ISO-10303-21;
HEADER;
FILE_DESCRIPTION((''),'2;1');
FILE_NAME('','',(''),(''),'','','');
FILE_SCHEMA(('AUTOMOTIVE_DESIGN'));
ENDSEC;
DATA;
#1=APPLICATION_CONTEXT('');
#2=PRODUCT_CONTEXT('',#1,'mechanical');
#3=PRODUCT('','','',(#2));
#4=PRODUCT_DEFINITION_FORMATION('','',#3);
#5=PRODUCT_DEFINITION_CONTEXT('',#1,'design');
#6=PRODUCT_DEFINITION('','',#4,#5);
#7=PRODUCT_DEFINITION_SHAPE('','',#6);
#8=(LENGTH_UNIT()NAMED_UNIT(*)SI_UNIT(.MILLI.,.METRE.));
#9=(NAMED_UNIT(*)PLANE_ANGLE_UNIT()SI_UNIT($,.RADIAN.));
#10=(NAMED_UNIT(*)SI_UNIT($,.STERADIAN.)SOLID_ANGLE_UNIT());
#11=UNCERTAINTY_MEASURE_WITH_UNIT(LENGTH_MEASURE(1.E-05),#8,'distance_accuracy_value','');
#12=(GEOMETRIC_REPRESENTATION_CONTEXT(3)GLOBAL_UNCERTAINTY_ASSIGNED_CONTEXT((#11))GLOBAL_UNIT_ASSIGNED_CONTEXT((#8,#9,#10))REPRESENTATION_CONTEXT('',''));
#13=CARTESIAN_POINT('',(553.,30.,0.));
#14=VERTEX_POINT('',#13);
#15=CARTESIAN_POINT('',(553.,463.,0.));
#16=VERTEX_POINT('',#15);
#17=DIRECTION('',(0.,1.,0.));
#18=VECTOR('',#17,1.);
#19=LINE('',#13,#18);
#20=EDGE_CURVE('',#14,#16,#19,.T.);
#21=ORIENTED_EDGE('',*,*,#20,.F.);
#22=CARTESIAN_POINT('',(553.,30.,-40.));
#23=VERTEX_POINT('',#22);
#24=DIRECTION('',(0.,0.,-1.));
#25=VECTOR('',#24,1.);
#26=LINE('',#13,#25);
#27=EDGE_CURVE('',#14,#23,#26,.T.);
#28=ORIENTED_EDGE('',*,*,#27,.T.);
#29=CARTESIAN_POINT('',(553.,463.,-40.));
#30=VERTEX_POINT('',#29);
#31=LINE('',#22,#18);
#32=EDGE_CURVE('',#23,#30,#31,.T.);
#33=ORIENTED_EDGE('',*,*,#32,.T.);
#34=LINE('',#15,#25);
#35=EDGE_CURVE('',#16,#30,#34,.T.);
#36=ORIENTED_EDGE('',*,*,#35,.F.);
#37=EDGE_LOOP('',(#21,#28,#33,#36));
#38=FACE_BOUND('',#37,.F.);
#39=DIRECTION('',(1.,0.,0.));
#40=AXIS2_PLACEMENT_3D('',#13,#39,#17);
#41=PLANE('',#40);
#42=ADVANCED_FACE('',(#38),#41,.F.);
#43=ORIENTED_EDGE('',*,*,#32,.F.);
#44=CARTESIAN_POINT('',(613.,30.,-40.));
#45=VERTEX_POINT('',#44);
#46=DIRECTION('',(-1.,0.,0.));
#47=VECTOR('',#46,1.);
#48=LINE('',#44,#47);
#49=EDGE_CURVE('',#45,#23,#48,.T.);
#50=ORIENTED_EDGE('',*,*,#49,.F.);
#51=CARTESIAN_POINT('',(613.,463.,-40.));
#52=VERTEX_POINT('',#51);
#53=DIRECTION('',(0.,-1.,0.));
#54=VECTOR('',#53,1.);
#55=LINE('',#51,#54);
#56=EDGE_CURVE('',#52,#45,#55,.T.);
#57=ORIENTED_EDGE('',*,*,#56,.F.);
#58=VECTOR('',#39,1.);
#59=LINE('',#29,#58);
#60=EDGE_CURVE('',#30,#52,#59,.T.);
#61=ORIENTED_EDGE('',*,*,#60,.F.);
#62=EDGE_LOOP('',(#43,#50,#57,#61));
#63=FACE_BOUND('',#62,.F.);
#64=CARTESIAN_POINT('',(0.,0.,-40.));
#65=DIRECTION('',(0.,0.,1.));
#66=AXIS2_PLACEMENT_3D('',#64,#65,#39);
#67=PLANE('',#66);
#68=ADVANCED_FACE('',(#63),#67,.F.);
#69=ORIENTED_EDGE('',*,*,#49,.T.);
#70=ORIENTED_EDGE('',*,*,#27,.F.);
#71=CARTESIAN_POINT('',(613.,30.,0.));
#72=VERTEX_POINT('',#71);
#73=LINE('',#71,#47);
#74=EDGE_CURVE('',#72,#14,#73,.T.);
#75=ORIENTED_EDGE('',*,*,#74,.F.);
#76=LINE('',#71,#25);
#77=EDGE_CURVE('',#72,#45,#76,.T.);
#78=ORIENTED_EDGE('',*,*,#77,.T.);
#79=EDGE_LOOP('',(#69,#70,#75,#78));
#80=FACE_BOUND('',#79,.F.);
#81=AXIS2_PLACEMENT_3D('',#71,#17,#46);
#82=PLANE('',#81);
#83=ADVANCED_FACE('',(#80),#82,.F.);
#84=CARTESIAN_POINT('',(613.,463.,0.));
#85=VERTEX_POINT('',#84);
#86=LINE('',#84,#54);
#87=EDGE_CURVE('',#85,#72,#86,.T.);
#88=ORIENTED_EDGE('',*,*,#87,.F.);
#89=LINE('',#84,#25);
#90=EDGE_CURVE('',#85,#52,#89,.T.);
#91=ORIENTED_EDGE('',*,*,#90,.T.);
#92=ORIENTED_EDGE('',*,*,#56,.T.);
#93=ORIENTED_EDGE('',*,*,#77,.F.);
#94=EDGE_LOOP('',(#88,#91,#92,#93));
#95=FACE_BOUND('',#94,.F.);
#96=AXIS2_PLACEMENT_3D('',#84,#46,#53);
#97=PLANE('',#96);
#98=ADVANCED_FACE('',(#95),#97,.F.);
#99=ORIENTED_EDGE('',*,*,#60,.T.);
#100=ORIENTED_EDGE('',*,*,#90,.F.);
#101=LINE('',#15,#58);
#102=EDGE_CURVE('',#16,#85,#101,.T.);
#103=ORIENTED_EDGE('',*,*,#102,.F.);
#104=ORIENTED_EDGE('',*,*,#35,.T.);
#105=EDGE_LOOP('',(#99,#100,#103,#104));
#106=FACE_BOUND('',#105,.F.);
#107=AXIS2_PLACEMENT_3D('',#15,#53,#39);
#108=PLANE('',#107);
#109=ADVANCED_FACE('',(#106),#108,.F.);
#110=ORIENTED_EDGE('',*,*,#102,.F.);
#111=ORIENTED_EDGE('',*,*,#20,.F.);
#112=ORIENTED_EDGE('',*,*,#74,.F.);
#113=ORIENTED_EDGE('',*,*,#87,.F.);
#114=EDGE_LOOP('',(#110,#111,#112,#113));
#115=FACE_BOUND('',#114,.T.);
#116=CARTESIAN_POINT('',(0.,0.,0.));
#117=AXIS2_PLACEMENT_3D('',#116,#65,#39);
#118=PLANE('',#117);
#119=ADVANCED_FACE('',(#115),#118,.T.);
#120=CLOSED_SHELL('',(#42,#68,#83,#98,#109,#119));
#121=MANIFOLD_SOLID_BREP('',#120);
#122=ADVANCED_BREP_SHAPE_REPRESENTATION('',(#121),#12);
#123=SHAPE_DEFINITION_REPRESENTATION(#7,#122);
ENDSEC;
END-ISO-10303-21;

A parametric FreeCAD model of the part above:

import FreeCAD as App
import Part
import Sketcher
from FreeCAD import Vector
Q = App.Units.Quantity


def add_polygon(sketch, points):
    """Adds a closed chain of lines whose ends are joined by coincident constraints."""
    first, n = sketch.GeometryCount, len(points)
    for a, b in zip(points, points[1:] + points[:1]):
        sketch.addGeometry(Part.LineSegment(App.Vector(*a, 0), App.Vector(*b, 0)), False)
    for i in range(n):
        sketch.addConstraint(Sketcher.Constraint("Coincident", first + i, 2, first + (i + 1) % n, 1))

doc = App.newDocument("Part")
body = doc.addObject("PartDesign::Body", "Body")

sketch1 = body.newObject("Sketcher::SketchObject", "Sketch")
sketch1.AttachmentSupport = (doc.getObject("XY_Plane"), [""])
sketch1.MapMode = "FlatFace"
add_polygon(sketch1, [(613, 30), (613, 463), (553, 463), (553, 30)])
sketch1.addConstraint([
    Sketcher.Constraint("Vertical", 0),
    Sketcher.Constraint("Horizontal", 1),
    Sketcher.Constraint("Vertical", 2),
    Sketcher.Constraint("Horizontal", 3),
    Sketcher.Constraint("DistanceX", 1, 2, 1, 1, Q("60 mm")),
    Sketcher.Constraint("DistanceY", 0, 1, 0, 2, Q("433 mm")),
    Sketcher.Constraint("DistanceX", -1, 1, 0, 2, Q("613 mm")),
    Sketcher.Constraint("DistanceY", -1, 1, 0, 2, Q("463 mm")),
])
pad1 = body.newObject("PartDesign::Pad", "Pad")
pad1.Profile = sketch1
pad1.Length = 40
pad1.Reversed = True

doc.recompute()
